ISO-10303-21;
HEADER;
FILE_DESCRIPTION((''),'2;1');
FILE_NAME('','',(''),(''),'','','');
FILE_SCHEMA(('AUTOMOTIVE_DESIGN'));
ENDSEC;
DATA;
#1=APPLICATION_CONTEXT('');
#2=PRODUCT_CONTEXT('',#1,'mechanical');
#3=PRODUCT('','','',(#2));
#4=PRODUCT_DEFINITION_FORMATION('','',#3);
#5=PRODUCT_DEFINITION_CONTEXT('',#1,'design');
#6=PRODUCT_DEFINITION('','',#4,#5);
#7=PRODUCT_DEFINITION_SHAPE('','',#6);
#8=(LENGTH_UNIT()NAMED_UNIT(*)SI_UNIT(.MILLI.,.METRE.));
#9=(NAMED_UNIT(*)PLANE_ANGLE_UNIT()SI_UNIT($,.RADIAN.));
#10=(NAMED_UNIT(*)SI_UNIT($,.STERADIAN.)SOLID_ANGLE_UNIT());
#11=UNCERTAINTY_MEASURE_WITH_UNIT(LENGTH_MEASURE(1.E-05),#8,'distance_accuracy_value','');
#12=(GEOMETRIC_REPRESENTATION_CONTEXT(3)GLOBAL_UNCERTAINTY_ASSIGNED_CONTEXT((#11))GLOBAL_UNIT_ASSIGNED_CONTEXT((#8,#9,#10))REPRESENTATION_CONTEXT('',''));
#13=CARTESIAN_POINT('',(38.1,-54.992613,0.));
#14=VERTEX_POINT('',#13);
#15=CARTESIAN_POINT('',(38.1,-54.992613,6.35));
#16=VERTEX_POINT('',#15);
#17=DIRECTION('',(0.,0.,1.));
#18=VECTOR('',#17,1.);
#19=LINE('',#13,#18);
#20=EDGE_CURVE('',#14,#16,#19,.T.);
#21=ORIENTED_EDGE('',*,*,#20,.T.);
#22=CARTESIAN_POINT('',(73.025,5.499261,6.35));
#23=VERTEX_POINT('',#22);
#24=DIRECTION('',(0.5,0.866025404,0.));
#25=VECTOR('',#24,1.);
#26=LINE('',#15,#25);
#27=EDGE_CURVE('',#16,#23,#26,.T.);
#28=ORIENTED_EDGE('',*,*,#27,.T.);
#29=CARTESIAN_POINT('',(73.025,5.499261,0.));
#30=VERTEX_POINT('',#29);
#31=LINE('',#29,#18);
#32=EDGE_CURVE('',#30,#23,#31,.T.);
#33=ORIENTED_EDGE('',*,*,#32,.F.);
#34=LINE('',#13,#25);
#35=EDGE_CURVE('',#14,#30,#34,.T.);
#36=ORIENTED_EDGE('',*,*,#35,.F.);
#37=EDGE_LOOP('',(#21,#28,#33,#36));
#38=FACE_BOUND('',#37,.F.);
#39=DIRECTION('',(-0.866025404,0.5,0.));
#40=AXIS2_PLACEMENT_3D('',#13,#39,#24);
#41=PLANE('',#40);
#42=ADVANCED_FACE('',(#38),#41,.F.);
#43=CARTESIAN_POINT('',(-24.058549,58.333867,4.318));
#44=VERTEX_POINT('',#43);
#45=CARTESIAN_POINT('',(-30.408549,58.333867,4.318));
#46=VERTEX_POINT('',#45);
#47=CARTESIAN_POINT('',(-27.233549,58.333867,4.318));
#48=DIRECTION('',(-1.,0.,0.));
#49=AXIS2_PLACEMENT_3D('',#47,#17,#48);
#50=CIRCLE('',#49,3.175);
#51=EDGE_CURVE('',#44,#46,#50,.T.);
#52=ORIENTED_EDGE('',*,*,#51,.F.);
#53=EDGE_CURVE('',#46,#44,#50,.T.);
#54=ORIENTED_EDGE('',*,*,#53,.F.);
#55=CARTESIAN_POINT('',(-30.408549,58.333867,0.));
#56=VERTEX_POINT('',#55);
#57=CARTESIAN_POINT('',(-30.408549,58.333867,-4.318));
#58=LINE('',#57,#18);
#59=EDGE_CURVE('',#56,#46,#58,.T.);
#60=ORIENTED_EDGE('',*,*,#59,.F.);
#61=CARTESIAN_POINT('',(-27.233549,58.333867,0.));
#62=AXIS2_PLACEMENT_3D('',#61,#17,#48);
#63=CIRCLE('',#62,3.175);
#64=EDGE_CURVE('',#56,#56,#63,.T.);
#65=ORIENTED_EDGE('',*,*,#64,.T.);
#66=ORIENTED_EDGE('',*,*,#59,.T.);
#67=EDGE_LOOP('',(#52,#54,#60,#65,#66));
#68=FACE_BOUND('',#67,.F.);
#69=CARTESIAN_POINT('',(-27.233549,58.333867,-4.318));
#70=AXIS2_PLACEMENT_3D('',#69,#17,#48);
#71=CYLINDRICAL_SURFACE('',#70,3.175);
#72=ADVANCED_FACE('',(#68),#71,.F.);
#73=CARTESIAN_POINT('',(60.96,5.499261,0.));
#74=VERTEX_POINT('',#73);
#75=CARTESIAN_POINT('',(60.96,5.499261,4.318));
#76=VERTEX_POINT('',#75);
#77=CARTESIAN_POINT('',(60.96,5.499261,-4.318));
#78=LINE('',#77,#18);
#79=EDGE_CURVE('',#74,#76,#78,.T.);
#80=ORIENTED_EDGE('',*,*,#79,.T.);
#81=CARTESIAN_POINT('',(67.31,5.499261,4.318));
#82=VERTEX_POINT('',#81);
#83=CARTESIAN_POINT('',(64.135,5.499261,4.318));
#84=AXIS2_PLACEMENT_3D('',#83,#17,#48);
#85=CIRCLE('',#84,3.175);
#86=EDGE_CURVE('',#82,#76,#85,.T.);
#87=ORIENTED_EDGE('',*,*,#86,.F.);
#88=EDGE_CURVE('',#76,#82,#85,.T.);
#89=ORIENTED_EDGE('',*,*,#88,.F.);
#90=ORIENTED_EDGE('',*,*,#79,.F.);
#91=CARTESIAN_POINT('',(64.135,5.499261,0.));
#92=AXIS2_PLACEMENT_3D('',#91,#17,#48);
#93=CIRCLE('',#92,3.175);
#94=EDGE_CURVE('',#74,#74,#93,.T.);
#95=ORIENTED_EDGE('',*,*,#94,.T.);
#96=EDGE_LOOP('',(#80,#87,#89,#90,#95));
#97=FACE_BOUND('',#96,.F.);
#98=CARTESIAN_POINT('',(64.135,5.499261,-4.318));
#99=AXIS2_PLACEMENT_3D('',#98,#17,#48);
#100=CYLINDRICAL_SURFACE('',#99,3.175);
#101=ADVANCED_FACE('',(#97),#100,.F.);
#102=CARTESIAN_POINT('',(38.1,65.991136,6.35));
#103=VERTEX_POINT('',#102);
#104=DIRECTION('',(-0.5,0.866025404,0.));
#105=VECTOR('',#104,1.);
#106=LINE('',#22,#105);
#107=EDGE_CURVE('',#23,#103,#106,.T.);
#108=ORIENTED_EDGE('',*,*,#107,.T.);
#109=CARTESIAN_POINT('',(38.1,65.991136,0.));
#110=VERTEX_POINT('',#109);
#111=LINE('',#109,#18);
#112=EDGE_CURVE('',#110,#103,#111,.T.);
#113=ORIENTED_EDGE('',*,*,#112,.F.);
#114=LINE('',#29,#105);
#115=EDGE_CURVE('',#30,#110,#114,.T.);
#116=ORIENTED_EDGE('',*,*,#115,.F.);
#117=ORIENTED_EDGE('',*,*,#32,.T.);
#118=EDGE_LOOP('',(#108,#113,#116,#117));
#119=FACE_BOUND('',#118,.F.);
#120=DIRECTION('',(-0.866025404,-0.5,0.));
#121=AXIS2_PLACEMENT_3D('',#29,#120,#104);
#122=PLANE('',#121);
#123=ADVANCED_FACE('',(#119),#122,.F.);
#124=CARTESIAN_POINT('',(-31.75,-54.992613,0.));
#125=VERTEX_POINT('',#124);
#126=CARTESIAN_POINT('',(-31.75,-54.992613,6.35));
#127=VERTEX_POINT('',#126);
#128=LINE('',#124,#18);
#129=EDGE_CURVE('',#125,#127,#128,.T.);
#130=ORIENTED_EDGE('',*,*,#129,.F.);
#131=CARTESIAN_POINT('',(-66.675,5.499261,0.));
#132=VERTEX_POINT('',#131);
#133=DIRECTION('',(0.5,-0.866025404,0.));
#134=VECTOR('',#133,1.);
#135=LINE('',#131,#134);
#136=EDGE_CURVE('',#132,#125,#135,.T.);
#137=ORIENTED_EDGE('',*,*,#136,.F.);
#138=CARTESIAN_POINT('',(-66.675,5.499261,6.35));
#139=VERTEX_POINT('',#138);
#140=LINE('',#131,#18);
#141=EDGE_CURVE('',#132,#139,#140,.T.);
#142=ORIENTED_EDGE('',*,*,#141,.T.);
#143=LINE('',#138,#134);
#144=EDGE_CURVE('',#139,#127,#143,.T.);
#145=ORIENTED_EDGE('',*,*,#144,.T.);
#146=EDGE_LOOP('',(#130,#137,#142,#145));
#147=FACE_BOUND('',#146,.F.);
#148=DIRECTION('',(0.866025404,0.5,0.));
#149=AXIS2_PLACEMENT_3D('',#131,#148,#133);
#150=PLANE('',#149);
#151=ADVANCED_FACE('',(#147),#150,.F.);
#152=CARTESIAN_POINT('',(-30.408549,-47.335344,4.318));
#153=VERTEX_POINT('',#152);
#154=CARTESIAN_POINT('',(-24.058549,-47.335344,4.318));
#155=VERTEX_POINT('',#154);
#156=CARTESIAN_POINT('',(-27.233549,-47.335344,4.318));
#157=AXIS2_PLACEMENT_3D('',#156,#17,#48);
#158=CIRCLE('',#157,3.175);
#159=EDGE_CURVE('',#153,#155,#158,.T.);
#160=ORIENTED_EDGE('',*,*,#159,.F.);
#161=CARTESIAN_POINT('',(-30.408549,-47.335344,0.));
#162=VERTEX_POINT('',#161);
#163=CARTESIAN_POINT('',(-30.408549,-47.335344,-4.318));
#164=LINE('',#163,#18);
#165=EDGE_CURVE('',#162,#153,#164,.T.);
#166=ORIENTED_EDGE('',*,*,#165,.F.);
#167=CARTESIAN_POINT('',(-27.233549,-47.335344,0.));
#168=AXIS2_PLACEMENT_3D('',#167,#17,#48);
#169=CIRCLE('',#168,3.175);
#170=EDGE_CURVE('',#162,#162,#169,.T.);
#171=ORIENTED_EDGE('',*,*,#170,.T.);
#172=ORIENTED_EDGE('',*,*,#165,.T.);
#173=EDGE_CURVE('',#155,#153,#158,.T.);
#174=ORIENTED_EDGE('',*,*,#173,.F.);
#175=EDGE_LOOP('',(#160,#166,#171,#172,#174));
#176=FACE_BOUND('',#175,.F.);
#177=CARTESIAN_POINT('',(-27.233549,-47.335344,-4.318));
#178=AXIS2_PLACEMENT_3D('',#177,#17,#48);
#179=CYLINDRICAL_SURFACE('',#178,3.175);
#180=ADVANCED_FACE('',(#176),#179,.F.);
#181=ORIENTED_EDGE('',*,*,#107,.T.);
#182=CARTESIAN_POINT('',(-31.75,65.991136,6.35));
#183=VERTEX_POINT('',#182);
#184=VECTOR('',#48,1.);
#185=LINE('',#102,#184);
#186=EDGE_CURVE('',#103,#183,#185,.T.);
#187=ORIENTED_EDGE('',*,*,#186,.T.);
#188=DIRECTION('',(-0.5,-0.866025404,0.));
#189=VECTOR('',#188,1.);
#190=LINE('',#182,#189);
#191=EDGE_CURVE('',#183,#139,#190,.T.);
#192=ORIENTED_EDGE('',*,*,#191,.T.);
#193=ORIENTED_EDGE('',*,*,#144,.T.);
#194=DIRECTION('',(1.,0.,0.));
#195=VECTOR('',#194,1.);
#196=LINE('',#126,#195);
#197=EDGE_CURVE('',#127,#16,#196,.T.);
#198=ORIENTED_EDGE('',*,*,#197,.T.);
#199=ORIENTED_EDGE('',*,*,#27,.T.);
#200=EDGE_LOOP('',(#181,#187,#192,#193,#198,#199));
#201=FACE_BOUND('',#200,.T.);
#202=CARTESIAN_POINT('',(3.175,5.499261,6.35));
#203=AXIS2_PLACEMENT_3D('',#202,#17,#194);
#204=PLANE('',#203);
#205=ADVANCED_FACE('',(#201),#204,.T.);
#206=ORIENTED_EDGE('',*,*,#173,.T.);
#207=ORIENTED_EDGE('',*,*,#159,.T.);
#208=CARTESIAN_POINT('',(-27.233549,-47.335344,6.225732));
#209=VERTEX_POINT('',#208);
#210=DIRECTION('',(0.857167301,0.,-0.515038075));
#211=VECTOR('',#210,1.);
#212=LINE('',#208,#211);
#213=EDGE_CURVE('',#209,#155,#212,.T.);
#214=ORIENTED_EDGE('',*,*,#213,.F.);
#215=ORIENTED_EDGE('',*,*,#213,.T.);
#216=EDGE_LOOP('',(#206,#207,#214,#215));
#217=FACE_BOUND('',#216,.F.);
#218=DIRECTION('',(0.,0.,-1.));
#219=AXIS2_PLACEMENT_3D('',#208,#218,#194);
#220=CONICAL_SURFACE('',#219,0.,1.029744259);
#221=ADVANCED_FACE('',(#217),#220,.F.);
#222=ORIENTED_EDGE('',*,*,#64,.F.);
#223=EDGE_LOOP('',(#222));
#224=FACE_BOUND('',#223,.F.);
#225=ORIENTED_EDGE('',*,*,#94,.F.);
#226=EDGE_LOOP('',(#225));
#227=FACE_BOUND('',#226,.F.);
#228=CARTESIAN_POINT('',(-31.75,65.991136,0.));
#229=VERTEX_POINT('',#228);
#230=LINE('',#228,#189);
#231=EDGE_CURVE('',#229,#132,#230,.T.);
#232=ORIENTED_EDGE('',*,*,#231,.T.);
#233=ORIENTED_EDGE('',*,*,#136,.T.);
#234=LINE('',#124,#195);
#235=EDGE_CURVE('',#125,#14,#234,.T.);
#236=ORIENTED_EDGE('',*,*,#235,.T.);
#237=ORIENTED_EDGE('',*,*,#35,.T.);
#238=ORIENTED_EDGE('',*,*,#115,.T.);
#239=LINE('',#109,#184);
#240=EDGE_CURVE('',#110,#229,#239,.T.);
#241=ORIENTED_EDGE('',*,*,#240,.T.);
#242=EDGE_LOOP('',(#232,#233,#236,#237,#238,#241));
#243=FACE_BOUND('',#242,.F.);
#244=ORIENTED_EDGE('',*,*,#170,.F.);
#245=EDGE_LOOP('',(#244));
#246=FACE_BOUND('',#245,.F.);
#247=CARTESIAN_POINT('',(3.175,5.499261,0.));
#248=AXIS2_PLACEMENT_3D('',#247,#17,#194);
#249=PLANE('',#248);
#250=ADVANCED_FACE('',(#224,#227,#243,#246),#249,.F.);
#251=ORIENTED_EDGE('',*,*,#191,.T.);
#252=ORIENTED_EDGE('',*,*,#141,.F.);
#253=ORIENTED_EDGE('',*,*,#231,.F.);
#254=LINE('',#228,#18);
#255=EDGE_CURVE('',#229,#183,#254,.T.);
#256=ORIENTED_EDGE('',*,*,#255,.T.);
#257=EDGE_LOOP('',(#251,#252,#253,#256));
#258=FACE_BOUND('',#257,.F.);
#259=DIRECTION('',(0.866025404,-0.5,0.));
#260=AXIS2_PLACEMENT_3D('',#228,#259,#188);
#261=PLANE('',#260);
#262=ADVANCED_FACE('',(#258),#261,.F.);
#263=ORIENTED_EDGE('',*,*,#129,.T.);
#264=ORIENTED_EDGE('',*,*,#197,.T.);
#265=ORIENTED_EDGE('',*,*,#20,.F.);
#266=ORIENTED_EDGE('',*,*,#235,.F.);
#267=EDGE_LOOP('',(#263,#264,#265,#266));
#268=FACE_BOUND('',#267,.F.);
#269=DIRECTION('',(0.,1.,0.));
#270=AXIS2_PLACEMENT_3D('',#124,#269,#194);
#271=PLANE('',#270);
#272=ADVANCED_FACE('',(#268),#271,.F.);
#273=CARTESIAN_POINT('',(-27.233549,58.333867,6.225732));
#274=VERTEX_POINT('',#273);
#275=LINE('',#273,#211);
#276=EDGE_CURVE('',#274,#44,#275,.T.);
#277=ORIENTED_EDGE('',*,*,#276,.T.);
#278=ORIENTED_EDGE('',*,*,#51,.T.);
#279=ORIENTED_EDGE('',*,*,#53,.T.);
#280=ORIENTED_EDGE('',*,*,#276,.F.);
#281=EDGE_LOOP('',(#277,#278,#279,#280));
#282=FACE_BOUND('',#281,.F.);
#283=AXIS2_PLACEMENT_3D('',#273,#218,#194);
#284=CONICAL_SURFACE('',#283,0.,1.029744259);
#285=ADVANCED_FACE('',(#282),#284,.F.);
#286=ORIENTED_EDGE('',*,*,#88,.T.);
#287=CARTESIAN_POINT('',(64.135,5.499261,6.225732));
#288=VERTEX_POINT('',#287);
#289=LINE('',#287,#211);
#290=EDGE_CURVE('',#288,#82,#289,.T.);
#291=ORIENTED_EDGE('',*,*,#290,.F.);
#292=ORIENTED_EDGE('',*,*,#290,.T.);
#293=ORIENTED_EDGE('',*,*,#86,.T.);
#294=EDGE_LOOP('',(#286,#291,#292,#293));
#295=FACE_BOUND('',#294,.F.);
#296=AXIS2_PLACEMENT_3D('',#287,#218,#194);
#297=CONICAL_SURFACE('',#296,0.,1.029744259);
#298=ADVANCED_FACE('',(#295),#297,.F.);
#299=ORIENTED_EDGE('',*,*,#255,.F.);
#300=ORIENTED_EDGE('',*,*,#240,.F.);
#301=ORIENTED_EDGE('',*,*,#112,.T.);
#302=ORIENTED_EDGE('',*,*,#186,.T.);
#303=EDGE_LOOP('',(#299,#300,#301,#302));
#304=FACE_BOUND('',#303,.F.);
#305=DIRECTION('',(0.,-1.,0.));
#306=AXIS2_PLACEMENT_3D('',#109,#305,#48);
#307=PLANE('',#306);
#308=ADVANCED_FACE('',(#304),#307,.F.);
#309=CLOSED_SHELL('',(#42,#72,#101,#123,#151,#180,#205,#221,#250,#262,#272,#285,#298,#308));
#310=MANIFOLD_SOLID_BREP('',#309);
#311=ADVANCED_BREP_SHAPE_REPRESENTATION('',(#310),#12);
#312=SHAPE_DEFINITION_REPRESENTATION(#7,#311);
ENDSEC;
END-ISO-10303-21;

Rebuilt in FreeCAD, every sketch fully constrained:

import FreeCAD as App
import Part
import Sketcher

V = App.Vector
Q = App.Units.Quantity


def add_polygon(sketch, points):
    """Adds a closed chain of lines whose ends are joined by coincident constraints."""
    first, n = sketch.GeometryCount, len(points)
    for a, b in zip(points, points[1:] + points[:1]):
        sketch.addGeometry(Part.LineSegment(App.Vector(*a, 0), App.Vector(*b, 0)), False)
    for i in range(n):
        sketch.addConstraint(Sketcher.Constraint("Coincident", first + i, 2, first + (i + 1) % n, 1))

doc = App.newDocument("Part")
params = doc.addObject("Spreadsheet::Sheet", "Params")
for row, (alias, value) in enumerate([
    ("sketch1_width", "2.75 in"),
    ("pad1_length", "0.25 in"),
    ("sketch2_diameter", "0.25 in"),
    ("hole_diameter", "0.25 in"),
    ("hole_depth", "0.17 in"),
], start=1):
    params.set(f"A{row}", alias)
    params.set(f"B{row}", "=" + value)
    params.setAlias(f"B{row}", alias)

body = doc.addObject("PartDesign::Body", "Body")

# Sketch on XY plane
sketch1 = doc.addObject("Sketcher::SketchObject", "Sketch")
body.addObject(sketch1)
sketch1.AttachmentSupport = (doc.XY_Plane, [""])
sketch1.MapMode = "FlatFace"
add_polygon(sketch1, [(38, 66), (-32, 66), (-67, 5), (-32, -55), (38, -55), (73, 5)])  # lines 0-5
sketch1.addConstraint(Sketcher.Constraint("Horizontal", 0))
sketch1.addConstraint(Sketcher.Constraint("Horizontal", 3))
sketch1.addConstraint(Sketcher.Constraint("Parallel", 1, 4))
sketch1.addConstraint(Sketcher.Constraint("Parallel", 2, 5))
sketch1.addConstraint(Sketcher.Constraint("Horizontal", 1, 2, 4, 2))
sketch1.addConstraint(Sketcher.Constraint("Vertical", 0, 2, 2, 2))
sketch1.addConstraint(Sketcher.Constraint("Vertical", 3, 2, 5, 2))
sketch1.addConstraint(Sketcher.Constraint("Angle", 1, Q("-120 deg")))
sketch1.addConstraint(Sketcher.Constraint("DistanceX", 0, 2, 0, 1, Q("2.75 in")))
sketch1.addConstraint(Sketcher.Constraint("DistanceX", -1, 1, 3, 2, Q("1.5 in")))
sketch1.addConstraint(Sketcher.Constraint("DistanceX", 1, 2, 4, 2, Q("5.5 in")))
sketch1.addConstraint(Sketcher.Constraint("DistanceY", -1, 1, 1, 2, Q("5.499261 mm")))
sketch1.setExpression("Constraints[14]", "Params.sketch1_width")
pad1 = doc.addObject("PartDesign::Pad", "Pad")
body.addObject(pad1)
pad1.Profile = sketch1
pad1.setExpression("Length", "Params.pad1_length")

# Sketch on XY plane
sketch2 = doc.addObject("Sketcher::SketchObject", "Sketch001")
body.addObject(sketch2)
sketch2.AttachmentSupport = (doc.XY_Plane, [""])
sketch2.MapMode = "FlatFace"
sketch2.addGeometry(Part.Circle(V(-27.2, 58.3, 0), V(0, 0, 1), 3.2), False)
sketch2.addGeometry(Part.Circle(V(-27.2, -47.3, 0), V(0, 0, 1), 3.2), False)
sketch2.addGeometry(Part.Circle(V(64.1, 5.5, 0), V(0, 0, 1), 3.2), False)
sketch2.addConstraint(Sketcher.Constraint("Equal", 0, 1))
sketch2.addConstraint(Sketcher.Constraint("Equal", 1, 2))
sketch2.addConstraint(Sketcher.Constraint("Vertical", 0, 3, 1, 3))
sketch2.addConstraint(Sketcher.Constraint("Diameter", 0, Q("0.25 in")))
sketch2.addConstraint(Sketcher.Constraint("DistanceX", -1, 1, 2, 3, Q("2.525 in")))
sketch2.addConstraint(Sketcher.Constraint("DistanceX", 0, 3, -1, 1, Q("27.233549 mm")))
sketch2.addConstraint(Sketcher.Constraint("DistanceY", -1, 1, 2, 3, Q("5.499261 mm")))
sketch2.addConstraint(Sketcher.Constraint("DistanceY", 1, 3, 0, 3, Q("105.669211 mm")))
sketch2.addConstraint(Sketcher.Constraint("DistanceY", -1, 1, 0, 3, Q("58.333867 mm")))
sketch2.setExpression("Constraints[3]", "Params.sketch2_diameter")
doc.recompute()
hole = doc.addObject("PartDesign::Hole", "Hole")
body.addObject(hole)
hole.Profile = sketch2
hole.ThreadType = "None"
hole.setExpression("Diameter", "Params.hole_diameter")
hole.DepthType = "Dimension"
hole.setExpression("Depth", "Params.hole_depth")
hole.DrillPoint = "Angled"
hole.DrillPointAngle = 118
hole.Reversed = True

doc.recompute()
